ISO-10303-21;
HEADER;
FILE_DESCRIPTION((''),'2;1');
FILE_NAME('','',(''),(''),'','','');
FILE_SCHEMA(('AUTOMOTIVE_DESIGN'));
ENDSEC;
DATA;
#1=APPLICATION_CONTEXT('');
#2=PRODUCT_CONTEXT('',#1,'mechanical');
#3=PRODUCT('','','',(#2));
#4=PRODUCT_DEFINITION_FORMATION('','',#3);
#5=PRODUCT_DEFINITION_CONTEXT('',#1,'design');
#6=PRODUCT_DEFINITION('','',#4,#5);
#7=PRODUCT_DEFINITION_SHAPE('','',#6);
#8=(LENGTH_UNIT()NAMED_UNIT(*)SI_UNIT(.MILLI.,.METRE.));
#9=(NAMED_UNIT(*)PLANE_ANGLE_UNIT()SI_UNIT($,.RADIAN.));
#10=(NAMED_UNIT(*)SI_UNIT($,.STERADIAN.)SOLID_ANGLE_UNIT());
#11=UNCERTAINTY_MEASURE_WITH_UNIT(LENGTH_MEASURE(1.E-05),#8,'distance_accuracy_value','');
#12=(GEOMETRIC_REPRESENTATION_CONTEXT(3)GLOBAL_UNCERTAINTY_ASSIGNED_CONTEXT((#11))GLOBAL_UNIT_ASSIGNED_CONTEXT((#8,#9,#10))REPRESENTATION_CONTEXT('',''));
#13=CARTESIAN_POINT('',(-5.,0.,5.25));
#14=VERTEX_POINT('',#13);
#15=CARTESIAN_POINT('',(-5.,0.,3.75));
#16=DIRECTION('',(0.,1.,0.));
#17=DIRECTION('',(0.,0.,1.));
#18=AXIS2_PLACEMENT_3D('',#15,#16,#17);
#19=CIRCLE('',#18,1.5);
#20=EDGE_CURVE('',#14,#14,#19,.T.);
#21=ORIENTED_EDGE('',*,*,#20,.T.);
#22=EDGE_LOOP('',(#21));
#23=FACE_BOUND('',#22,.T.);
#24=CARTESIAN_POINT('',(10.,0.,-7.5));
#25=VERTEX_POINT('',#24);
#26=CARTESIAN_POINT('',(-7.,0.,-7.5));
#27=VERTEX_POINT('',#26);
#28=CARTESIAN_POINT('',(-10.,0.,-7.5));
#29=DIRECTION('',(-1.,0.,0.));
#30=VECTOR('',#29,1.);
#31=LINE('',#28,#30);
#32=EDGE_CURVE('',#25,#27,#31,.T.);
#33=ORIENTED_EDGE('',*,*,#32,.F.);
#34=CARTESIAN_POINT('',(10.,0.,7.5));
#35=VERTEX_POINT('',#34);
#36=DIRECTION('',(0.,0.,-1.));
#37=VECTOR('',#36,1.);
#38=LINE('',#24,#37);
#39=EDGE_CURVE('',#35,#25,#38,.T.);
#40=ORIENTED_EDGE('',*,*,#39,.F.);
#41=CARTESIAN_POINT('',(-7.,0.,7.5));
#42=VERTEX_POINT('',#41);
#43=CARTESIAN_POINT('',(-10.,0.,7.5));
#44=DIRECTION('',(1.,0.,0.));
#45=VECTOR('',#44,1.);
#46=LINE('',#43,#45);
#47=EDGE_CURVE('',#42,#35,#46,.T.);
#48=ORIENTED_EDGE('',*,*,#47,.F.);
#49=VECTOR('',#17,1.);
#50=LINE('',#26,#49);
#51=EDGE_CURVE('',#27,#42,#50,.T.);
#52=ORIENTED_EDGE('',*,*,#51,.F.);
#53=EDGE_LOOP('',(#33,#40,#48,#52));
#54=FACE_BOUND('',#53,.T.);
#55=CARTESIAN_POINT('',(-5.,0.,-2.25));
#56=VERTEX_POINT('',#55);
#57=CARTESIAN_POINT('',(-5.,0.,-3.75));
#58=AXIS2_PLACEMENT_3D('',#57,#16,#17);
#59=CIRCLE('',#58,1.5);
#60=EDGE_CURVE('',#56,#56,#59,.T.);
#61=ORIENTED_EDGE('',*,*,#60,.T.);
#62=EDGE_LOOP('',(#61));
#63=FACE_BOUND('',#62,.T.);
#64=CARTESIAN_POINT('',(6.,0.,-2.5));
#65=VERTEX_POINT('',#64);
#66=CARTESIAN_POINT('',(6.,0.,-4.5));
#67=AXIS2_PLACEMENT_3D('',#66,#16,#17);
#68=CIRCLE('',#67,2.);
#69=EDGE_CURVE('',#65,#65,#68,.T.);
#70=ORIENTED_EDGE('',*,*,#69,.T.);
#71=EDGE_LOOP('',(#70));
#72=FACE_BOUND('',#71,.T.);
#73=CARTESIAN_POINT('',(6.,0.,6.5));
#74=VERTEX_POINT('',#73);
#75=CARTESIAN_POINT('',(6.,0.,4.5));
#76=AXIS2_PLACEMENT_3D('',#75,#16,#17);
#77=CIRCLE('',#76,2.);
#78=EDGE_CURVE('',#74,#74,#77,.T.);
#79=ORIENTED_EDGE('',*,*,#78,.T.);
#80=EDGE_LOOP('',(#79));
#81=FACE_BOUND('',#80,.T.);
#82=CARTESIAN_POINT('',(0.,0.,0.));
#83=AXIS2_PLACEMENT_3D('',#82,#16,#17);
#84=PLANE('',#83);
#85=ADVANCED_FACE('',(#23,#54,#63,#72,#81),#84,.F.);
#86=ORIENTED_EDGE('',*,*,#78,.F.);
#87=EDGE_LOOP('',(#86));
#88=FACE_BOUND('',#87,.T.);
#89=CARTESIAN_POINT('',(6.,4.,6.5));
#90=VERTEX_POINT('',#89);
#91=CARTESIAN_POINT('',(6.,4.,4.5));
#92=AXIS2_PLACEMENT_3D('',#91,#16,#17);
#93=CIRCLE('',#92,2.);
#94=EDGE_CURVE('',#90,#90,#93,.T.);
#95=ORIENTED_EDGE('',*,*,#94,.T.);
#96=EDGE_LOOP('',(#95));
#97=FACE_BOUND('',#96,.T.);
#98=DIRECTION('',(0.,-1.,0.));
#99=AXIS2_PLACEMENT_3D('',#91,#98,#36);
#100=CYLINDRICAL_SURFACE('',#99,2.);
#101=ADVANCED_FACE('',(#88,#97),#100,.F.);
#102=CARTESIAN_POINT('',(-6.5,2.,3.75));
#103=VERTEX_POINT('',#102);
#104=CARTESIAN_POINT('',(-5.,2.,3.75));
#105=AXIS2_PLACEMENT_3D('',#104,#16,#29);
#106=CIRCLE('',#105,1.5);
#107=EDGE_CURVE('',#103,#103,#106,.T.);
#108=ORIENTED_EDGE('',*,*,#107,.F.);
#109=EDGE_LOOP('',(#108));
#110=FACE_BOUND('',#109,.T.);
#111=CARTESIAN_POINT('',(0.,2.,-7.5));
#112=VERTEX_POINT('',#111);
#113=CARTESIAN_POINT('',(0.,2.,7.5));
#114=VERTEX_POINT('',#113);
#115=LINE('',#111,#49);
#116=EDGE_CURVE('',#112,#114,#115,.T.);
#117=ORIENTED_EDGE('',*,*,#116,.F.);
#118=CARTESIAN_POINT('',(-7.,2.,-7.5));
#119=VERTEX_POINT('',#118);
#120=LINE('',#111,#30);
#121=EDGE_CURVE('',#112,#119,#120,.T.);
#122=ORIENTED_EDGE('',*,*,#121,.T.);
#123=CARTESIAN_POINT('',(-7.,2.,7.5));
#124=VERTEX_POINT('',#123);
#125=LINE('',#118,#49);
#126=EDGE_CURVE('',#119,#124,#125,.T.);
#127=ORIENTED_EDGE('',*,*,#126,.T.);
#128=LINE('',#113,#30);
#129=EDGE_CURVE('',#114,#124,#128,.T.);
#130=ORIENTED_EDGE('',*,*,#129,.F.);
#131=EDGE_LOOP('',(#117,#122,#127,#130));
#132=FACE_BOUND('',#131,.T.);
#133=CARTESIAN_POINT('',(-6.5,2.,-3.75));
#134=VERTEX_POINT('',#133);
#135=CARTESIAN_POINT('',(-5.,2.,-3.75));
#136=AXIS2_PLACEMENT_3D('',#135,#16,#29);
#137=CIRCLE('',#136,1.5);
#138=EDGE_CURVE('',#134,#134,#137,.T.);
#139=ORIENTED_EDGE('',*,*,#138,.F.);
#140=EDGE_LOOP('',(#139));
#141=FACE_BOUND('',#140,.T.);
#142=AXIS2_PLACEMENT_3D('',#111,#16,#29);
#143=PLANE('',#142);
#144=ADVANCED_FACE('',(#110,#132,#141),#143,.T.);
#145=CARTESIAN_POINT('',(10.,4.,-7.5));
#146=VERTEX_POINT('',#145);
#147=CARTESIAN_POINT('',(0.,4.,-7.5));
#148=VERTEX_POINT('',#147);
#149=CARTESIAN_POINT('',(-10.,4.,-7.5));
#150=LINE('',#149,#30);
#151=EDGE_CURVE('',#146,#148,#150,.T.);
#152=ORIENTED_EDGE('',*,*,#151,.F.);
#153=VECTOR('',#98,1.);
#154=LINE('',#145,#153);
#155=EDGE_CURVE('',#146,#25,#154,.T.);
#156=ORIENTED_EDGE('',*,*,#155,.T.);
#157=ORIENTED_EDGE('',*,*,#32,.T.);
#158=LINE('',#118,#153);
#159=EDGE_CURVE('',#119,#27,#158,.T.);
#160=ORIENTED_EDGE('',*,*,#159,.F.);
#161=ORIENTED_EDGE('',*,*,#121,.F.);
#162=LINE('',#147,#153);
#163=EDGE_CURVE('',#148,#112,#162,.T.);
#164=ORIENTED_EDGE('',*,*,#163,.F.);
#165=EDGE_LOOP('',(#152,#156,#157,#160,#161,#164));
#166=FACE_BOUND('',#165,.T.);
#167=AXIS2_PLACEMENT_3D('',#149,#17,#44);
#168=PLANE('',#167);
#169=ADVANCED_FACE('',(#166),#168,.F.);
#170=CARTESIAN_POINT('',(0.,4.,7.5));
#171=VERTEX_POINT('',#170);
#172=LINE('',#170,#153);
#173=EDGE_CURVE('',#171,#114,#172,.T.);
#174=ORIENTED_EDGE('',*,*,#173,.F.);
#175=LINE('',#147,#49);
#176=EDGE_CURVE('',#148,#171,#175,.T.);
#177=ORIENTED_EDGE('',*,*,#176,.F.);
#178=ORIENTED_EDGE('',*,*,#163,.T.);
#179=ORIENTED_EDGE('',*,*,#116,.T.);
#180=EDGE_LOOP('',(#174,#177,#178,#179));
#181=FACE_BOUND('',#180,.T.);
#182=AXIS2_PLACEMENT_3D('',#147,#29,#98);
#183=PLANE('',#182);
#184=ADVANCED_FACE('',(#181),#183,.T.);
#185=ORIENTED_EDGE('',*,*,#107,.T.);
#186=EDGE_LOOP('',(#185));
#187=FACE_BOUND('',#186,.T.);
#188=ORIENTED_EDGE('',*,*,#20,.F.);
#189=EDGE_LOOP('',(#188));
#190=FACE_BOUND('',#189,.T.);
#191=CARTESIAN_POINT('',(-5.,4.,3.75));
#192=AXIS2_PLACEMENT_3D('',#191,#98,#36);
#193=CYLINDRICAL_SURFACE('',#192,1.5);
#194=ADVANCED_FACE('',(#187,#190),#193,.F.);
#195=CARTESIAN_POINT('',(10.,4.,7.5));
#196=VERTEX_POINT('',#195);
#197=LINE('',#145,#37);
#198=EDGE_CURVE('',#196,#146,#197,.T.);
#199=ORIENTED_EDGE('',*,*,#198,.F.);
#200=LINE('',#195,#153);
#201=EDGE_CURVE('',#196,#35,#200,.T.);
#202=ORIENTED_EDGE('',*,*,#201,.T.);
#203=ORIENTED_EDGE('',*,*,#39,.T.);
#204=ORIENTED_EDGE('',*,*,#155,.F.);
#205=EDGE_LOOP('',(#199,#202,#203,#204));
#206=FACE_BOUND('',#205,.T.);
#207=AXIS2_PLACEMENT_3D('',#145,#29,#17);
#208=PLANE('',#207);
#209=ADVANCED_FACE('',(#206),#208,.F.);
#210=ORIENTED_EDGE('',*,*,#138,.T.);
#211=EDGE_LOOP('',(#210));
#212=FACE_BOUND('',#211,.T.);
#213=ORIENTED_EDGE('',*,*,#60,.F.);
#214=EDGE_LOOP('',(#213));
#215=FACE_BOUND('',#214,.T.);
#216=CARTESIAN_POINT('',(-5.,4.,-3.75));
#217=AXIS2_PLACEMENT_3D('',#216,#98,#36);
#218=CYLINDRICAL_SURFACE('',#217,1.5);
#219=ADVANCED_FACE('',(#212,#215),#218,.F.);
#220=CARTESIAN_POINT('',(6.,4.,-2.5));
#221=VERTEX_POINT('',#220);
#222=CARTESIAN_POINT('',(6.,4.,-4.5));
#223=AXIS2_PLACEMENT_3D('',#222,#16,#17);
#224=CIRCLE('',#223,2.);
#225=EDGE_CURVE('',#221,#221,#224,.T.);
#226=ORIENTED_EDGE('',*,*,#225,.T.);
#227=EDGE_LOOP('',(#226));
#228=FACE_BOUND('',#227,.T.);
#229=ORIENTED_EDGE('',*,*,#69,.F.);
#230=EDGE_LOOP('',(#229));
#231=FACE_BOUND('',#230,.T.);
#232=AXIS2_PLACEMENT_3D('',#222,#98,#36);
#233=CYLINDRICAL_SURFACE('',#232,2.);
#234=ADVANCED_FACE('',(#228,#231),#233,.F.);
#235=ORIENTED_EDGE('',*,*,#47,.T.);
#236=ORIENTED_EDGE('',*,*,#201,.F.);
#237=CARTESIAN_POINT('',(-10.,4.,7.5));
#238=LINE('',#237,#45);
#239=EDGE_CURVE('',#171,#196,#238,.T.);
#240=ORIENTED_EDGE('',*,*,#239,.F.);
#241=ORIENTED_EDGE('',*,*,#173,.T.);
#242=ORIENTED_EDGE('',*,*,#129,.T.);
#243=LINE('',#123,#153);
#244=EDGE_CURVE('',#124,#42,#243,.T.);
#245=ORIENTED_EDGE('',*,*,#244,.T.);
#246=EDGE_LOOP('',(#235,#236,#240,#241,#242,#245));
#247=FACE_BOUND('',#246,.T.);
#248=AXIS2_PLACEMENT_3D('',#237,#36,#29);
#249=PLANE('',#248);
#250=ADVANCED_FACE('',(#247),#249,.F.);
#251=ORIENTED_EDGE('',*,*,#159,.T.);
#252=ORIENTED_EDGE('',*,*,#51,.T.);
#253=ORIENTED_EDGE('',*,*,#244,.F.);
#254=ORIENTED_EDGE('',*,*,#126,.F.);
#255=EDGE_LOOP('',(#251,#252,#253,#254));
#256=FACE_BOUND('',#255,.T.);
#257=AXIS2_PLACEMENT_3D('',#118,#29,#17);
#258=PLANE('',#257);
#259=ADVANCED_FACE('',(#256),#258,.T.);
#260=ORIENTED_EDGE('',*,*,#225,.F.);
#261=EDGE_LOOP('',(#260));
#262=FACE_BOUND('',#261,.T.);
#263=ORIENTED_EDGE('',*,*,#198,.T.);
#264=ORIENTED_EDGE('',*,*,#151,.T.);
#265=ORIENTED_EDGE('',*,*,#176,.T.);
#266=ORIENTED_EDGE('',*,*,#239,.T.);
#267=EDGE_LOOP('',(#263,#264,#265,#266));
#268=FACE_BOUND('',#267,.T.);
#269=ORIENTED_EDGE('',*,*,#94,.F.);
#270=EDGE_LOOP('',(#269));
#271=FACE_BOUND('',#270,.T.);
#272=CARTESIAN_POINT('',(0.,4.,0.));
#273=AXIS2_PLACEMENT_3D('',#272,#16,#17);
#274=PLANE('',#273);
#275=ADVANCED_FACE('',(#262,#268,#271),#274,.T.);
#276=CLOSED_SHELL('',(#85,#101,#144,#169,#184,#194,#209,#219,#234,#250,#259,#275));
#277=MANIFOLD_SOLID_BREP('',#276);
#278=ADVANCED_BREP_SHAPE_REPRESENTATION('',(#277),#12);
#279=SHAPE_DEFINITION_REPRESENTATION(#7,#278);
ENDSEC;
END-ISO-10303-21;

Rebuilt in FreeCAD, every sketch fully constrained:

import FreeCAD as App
import Part
import Sketcher
Q = App.Units.Quantity

doc = App.newDocument("Part")
params = doc.addObject("Spreadsheet::Sheet", "Params")
for row, (alias, value) in enumerate([
    ("sketch1_diameter", "3 mm"),
    ("sketch1_diameter2", "4 mm"),
    ("sketch1_width", "20 mm"),
    ("sketch1_height", "15 mm"),
    ("pad1_length", "4 mm"),
    ("sketch2_width", "10 mm"),
    ("sketch2_width2", "7 mm"),
    ("sketch2_height", "2 mm"),
], start=1):
    params.set(f"A{row}", alias)
    params.set(f"B{row}", "=" + value)
    params.setAlias(f"B{row}", alias)

body = doc.addObject("PartDesign::Body", "Body")

# Sketch on XZ plane
sketch1 = body.newObject("Sketcher::SketchObject", "Sketch")
sketch1.AttachmentSupport = (doc.getObject("XZ_Plane"), [""])
sketch1.MapMode = "FlatFace"
sketch1.addGeometry(Part.LineSegment(App.Vector(-10, -7.5, 0), App.Vector(-10, 7.5, 0)), False)
sketch1.addGeometry(Part.LineSegment(App.Vector(-10, 7.5, 0), App.Vector(10, 7.5, 0)), False)
sketch1.addGeometry(Part.LineSegment(App.Vector(10, 7.5, 0), App.Vector(10, -7.5, 0)), False)
sketch1.addGeometry(Part.LineSegment(App.Vector(10, -7.5, 0), App.Vector(-10, -7.5, 0)), False)
sketch1.addGeometry(Part.Circle(App.Vector(-5, 3.8, 0), App.Vector(0, 0, 1), 1.5), False)
sketch1.addGeometry(Part.Circle(App.Vector(6, 4.5, 0), App.Vector(0, 0, 1), 2), False)
sketch1.addGeometry(Part.Circle(App.Vector(-5, -3.8, 0), App.Vector(0, 0, 1), 1.5), False)
sketch1.addGeometry(Part.Circle(App.Vector(6, -4.5, 0), App.Vector(0, 0, 1), 2), False)
sketch1.addConstraint(Sketcher.Constraint("Coincident", 0, 2, 1, 1))
sketch1.addConstraint(Sketcher.Constraint("Coincident", 1, 2, 2, 1))
sketch1.addConstraint(Sketcher.Constraint("Coincident", 2, 2, 3, 1))
sketch1.addConstraint(Sketcher.Constraint("Coincident", 3, 2, 0, 1))
sketch1.addConstraint(Sketcher.Constraint("Vertical", 0))
sketch1.addConstraint(Sketcher.Constraint("Horizontal", 1))
sketch1.addConstraint(Sketcher.Constraint("Vertical", 2))
sketch1.addConstraint(Sketcher.Constraint("Horizontal", 3))
sketch1.addConstraint(Sketcher.Constraint("Equal", 4, 6))
sketch1.addConstraint(Sketcher.Constraint("Equal", 5, 7))
sketch1.addConstraint(Sketcher.Constraint("Symmetric", 0, 2, 2, 2, -1, 1))
sketch1.addConstraint(Sketcher.Constraint("Symmetric", 4, 3, 6, 3, -1))
sketch1.addConstraint(Sketcher.Constraint("Symmetric", 5, 3, 7, 3, -1))
sketch1.addConstraint(Sketcher.Constraint("Diameter", 4, Q("3 mm")))
sketch1.addConstraint(Sketcher.Constraint("Diameter", 5, Q("4 mm")))
sketch1.addConstraint(Sketcher.Constraint("DistanceX", 1, 1, 1, 2, Q("20 mm")))
sketch1.addConstraint(Sketcher.Constraint("DistanceY", 0, 1, 0, 2, Q("15 mm")))
sketch1.addConstraint(Sketcher.Constraint("DistanceX", 4, 3, -1, 1, Q("5 mm")))
sketch1.addConstraint(Sketcher.Constraint("DistanceX", -1, 1, 5, 3, Q("6 mm")))
sketch1.addConstraint(Sketcher.Constraint("DistanceY", 7, 3, 5, 3, Q("9 mm")))
sketch1.addConstraint(Sketcher.Constraint("DistanceY", 6, 3, 4, 3, Q("7.5 mm")))
sketch1.setExpression("Constraints[13]", "Params.sketch1_diameter")
sketch1.setExpression("Constraints[14]", "Params.sketch1_diameter2")
sketch1.setExpression("Constraints[15]", "Params.sketch1_width")
sketch1.setExpression("Constraints[16]", "Params.sketch1_height")
pad1 = body.newObject("PartDesign::Pad", "Pad")
pad1.Profile = sketch1
pad1.setExpression("Length", "Params.pad1_length")
pad1.Reversed = True

# Sketch on XY plane
sketch2 = body.newObject("Sketcher::SketchObject", "Sketch001")
sketch2.AttachmentSupport = (doc.getObject("XY_Plane"), [""])
sketch2.MapMode = "FlatFace"
sketch2.AttachmentOffset = App.Placement(App.Vector(0, 0, 7.5), App.Rotation())
sketch2.addGeometry(Part.LineSegment(App.Vector(-10, 4, 0), App.Vector(0, 4, 0)), False)
sketch2.addGeometry(Part.LineSegment(App.Vector(0, 4, 0), App.Vector(0, 2, 0)), False)
sketch2.addGeometry(Part.LineSegment(App.Vector(0, 2, 0), App.Vector(-7, 2, 0)), False)
sketch2.addGeometry(Part.LineSegment(App.Vector(-7, 2, 0), App.Vector(-7, 0, 0)), False)
sketch2.addGeometry(Part.LineSegment(App.Vector(-7, 0, 0), App.Vector(-10, 0, 0)), False)
sketch2.addGeometry(Part.LineSegment(App.Vector(-10, 0, 0), App.Vector(-10, 4, 0)), False)
sketch2.addConstraint(Sketcher.Constraint("Coincident", 0, 2, 1, 1))
sketch2.addConstraint(Sketcher.Constraint("Coincident", 1, 2, 2, 1))
sketch2.addConstraint(Sketcher.Constraint("Coincident", 2, 2, 3, 1))
sketch2.addConstraint(Sketcher.Constraint("Coincident", 3, 2, 4, 1))
sketch2.addConstraint(Sketcher.Constraint("Coincident", 4, 2, 5, 1))
sketch2.addConstraint(Sketcher.Constraint("Coincident", 5, 2, 0, 1))
sketch2.addConstraint(Sketcher.Constraint("Horizontal", 0))
sketch2.addConstraint(Sketcher.Constraint("Vertical", 1))
sketch2.addConstraint(Sketcher.Constraint("Horizontal", 2))
sketch2.addConstraint(Sketcher.Constraint("Vertical", 3))
sketch2.addConstraint(Sketcher.Constraint("Horizontal", 4))
sketch2.addConstraint(Sketcher.Constraint("Vertical", 5))
sketch2.addConstraint(Sketcher.Constraint("PointOnObject", 0, 2, -2))
sketch2.addConstraint(Sketcher.Constraint("PointOnObject", 3, 2, -1))
sketch2.addConstraint(Sketcher.Constraint("Equal", 1, 3))
sketch2.addConstraint(Sketcher.Constraint("DistanceX", 0, 1, 0, 2, Q("10 mm")))
sketch2.addConstraint(Sketcher.Constraint("DistanceX", 2, 2, 2, 1, Q("7 mm")))
sketch2.addConstraint(Sketcher.Constraint("DistanceY", 1, 2, 1, 1, Q("2 mm")))
sketch2.setExpression("Constraints[15]", "Params.sketch2_width")
sketch2.setExpression("Constraints[16]", "Params.sketch2_width2")
sketch2.setExpression("Constraints[17]", "Params.sketch2_height")
pocket1 = body.newObject("PartDesign::Pocket", "Pocket")
pocket1.Profile = sketch2
pocket1.Type = "ThroughAll"

doc.recompute()
